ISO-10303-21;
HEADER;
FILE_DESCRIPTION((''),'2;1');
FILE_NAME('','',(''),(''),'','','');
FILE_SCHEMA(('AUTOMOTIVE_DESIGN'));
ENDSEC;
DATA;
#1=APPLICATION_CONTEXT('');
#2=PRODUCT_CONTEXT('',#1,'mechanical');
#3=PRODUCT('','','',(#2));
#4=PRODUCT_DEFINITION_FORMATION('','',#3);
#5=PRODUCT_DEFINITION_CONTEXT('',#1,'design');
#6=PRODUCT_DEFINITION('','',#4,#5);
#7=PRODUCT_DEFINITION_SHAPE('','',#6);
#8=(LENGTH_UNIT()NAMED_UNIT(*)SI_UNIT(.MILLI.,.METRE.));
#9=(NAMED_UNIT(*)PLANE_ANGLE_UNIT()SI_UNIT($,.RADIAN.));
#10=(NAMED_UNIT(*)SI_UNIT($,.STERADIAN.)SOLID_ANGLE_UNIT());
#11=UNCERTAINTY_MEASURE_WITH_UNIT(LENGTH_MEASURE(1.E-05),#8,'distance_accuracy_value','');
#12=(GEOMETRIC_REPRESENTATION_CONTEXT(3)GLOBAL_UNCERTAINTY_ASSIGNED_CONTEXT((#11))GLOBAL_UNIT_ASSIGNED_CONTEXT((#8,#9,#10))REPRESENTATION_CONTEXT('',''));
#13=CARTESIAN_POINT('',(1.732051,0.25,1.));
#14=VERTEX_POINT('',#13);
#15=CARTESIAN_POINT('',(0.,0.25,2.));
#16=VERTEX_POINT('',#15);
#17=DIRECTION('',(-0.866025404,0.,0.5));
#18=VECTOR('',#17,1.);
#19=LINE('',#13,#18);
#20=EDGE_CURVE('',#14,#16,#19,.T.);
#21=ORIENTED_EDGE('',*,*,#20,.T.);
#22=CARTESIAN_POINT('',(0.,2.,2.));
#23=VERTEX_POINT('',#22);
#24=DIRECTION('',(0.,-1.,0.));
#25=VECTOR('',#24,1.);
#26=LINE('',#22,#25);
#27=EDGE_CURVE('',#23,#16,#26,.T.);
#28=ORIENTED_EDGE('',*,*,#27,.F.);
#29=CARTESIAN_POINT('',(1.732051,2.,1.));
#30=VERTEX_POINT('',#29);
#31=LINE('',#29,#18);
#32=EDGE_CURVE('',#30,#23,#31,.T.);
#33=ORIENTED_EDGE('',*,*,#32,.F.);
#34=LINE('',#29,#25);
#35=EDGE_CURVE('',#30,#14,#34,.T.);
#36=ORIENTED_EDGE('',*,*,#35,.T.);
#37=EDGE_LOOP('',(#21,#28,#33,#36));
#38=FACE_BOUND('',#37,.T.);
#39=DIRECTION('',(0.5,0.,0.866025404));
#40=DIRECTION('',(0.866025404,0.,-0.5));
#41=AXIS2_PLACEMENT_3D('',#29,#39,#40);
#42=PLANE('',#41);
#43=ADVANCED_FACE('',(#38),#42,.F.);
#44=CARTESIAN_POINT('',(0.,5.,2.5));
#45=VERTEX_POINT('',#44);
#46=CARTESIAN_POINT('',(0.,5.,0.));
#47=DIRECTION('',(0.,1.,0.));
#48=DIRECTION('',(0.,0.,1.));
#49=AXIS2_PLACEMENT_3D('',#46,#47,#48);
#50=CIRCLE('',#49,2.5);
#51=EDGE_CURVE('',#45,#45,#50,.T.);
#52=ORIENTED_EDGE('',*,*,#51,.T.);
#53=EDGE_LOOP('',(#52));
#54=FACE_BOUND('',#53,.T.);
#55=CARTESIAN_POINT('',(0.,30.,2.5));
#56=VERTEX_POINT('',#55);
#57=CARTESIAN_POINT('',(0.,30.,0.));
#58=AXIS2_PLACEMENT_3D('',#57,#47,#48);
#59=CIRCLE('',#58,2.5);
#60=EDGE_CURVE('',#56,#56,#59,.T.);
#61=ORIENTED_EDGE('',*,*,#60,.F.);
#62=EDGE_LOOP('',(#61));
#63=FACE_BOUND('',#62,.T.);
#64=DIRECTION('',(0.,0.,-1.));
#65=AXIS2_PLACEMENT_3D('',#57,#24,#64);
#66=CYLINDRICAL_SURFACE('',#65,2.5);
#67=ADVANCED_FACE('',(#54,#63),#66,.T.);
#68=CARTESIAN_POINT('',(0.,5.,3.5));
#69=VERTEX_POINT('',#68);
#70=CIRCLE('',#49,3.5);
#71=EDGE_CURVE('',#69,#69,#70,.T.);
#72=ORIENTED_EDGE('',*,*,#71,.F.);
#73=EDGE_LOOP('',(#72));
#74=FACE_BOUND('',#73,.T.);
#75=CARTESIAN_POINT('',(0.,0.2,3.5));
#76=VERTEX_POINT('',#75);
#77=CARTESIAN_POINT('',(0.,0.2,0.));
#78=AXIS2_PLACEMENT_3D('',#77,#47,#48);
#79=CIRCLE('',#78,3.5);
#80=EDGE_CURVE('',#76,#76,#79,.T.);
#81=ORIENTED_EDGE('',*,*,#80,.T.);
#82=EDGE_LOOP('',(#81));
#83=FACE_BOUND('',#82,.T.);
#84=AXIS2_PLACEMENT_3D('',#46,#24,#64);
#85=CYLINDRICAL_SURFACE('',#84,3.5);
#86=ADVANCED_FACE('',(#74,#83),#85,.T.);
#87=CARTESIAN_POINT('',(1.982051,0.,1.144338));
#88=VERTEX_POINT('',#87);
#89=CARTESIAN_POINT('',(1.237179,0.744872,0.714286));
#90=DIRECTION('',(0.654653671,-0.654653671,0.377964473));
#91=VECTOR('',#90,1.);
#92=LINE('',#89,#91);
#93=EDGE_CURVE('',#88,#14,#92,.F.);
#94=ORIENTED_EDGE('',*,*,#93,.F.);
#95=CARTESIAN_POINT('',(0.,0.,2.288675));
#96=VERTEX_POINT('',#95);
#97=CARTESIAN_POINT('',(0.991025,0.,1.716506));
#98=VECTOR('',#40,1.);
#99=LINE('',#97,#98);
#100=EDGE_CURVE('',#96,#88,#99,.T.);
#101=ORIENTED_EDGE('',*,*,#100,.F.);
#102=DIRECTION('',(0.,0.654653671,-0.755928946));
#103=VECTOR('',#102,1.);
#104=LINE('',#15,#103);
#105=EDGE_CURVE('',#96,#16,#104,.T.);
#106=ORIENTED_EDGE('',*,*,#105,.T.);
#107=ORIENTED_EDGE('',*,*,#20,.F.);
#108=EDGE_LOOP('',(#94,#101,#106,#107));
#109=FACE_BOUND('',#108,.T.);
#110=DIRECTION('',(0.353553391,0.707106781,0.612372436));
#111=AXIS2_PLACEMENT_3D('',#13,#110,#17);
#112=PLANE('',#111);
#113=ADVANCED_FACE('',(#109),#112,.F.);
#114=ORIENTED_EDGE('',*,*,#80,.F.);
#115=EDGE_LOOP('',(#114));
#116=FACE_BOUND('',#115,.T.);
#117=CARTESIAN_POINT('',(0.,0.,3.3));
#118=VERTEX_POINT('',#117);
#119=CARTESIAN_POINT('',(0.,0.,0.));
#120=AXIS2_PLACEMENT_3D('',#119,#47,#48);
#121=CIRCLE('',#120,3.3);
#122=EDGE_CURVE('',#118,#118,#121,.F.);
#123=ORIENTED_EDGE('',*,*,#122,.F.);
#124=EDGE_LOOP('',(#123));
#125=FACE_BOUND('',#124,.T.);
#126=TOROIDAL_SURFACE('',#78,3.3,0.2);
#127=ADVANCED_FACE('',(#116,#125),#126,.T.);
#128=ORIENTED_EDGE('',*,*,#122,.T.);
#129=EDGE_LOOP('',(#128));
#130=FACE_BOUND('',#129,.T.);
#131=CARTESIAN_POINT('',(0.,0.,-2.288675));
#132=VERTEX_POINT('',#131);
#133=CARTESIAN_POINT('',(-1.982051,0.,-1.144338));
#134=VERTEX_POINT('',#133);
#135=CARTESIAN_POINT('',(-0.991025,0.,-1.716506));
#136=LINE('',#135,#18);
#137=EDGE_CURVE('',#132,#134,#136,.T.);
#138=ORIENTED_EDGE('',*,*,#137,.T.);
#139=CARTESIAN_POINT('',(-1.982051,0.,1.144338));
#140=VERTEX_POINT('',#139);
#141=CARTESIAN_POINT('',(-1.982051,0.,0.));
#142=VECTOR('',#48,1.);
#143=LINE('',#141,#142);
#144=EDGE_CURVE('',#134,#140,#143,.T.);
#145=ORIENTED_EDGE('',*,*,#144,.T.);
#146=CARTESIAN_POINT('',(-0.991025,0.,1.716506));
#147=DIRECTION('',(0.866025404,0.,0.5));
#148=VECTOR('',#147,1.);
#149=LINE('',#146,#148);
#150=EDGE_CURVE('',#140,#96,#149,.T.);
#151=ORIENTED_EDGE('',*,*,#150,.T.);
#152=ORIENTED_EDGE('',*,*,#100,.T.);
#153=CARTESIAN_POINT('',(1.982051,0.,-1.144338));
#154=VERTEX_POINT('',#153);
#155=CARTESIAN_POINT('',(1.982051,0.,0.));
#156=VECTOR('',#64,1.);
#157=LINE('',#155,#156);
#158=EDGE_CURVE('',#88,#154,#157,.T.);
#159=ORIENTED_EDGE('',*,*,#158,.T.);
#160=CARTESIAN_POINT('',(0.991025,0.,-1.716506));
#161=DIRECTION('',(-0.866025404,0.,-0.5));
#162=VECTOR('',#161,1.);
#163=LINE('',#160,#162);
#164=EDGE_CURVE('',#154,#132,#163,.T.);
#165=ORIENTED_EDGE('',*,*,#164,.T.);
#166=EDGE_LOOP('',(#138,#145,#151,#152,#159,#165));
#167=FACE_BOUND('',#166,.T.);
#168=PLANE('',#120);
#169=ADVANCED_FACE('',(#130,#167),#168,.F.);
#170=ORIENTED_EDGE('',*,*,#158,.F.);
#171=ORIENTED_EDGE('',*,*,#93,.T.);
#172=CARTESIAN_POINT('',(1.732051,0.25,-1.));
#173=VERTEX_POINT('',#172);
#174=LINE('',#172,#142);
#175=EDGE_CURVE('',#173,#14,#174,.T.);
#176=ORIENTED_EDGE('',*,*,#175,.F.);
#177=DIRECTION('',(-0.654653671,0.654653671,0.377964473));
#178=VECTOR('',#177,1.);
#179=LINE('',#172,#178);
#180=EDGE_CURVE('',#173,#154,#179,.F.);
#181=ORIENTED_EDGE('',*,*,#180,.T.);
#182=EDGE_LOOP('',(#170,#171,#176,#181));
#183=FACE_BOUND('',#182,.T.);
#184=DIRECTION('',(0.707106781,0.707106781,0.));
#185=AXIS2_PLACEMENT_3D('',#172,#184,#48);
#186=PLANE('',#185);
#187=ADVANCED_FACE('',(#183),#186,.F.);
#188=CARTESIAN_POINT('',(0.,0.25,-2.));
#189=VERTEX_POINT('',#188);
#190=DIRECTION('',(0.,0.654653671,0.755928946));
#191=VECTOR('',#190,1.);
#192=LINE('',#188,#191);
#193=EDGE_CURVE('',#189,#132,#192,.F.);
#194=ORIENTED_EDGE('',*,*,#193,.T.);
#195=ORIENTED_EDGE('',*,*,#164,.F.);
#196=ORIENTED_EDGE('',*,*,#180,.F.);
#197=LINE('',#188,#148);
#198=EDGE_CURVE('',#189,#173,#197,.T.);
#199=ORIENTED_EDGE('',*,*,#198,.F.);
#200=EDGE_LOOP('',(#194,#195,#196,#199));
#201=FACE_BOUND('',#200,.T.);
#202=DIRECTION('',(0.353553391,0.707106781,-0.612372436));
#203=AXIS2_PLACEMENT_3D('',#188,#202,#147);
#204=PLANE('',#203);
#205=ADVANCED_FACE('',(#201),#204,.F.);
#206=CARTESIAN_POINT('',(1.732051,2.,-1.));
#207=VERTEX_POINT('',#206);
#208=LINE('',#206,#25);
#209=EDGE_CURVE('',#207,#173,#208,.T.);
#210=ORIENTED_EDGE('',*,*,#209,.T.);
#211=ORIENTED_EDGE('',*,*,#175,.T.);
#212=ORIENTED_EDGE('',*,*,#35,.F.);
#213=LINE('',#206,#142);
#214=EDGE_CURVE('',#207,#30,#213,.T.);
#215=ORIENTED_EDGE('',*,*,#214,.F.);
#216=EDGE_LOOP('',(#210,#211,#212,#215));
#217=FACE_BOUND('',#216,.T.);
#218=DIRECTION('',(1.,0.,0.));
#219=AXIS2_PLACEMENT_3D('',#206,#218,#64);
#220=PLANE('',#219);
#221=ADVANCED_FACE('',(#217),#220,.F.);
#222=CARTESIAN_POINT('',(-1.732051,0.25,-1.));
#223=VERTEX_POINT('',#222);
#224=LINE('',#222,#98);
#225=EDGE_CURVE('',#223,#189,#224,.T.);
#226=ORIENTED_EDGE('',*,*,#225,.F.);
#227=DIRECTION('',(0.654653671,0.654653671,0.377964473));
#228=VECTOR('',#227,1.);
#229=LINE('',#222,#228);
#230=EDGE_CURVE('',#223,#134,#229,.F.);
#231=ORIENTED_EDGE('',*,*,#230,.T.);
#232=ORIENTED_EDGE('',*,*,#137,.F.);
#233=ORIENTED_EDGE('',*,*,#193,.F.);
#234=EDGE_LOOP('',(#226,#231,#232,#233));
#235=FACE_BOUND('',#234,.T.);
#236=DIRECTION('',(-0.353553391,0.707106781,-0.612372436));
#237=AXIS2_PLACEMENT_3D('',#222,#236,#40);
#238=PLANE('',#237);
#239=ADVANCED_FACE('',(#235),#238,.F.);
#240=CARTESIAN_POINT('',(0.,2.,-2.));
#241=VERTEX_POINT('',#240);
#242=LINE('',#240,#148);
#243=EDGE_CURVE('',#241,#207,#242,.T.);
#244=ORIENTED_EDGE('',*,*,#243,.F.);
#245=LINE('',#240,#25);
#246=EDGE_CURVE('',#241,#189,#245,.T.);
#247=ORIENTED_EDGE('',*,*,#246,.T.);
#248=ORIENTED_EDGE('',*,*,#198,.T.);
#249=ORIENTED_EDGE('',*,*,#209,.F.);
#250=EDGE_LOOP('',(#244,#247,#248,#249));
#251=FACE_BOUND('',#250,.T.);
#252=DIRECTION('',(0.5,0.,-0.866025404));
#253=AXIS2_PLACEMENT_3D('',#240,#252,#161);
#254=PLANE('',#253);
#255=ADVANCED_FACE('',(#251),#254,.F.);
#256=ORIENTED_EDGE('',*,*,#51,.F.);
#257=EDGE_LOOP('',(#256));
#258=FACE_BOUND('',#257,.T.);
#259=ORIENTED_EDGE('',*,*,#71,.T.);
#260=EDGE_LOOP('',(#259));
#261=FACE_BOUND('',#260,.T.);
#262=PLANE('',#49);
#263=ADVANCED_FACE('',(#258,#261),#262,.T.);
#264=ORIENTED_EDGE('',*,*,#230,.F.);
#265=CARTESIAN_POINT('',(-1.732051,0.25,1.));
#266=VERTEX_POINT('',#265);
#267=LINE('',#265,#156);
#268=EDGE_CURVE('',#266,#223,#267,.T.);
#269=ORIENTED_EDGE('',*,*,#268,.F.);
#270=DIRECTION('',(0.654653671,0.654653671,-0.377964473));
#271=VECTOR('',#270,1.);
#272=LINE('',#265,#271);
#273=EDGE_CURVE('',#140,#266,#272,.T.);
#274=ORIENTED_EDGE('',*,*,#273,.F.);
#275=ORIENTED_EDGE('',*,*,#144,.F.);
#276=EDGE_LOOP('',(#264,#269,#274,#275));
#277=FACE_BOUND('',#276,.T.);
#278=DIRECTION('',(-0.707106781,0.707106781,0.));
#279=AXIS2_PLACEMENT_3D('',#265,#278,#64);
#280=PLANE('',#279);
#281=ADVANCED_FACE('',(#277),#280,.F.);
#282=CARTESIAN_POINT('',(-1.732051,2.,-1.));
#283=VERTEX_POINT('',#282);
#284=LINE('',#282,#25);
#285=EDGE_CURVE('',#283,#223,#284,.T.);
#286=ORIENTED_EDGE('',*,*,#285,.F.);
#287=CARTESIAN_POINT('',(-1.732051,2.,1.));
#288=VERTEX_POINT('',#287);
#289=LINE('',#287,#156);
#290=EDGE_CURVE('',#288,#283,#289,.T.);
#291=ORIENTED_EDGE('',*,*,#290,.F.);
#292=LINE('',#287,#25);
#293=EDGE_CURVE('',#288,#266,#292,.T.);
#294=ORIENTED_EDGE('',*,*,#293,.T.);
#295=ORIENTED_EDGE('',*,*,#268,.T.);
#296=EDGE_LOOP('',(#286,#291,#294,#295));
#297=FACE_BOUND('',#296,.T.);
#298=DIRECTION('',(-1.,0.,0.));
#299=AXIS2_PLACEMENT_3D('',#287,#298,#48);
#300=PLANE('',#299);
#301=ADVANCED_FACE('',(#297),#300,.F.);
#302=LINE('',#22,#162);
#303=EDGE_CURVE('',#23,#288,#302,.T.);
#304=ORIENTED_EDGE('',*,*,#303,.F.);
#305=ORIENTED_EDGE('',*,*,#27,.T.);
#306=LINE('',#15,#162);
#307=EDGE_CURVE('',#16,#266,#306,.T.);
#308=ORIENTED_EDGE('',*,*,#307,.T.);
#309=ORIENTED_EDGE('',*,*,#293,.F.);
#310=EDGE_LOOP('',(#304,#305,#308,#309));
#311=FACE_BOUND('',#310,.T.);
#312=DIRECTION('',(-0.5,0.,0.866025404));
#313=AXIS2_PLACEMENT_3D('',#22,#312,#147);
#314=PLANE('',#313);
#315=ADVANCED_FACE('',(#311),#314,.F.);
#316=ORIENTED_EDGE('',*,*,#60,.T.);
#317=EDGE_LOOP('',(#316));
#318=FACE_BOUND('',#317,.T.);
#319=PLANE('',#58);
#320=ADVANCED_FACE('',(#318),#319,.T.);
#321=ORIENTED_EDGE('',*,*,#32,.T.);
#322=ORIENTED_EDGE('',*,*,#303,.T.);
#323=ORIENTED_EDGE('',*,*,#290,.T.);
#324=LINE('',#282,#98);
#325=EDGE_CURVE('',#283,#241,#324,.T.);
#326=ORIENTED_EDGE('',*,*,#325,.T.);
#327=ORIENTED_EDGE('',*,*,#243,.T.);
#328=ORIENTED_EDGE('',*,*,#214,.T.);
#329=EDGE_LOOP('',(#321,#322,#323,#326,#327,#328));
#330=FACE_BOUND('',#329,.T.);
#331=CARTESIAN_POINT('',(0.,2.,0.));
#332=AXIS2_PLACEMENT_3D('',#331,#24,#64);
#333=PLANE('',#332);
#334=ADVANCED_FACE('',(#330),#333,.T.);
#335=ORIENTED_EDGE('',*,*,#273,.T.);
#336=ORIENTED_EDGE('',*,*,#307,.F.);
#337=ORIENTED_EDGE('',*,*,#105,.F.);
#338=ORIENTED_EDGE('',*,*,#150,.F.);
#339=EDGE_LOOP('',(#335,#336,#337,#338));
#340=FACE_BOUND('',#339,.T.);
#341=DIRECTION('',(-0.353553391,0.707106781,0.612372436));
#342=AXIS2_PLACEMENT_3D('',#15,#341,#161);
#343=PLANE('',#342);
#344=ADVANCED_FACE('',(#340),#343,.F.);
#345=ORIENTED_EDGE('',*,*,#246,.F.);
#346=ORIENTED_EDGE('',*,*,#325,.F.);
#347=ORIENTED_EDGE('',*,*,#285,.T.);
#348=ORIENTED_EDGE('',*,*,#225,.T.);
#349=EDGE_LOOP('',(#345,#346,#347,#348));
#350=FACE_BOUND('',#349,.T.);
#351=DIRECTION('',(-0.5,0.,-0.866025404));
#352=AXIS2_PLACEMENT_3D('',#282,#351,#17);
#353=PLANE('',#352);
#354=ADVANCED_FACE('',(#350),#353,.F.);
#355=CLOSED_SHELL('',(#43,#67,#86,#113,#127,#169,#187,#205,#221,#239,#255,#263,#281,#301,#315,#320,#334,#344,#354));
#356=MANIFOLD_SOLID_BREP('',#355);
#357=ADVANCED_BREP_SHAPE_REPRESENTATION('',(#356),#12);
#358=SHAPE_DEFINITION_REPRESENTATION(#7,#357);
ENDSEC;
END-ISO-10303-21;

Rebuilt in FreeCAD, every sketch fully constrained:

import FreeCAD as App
import Part
import Sketcher
Q = App.Units.Quantity


def edges_at(feature, points):
    """Names of the edges that pass closest to the given points."""
    edges = feature.Shape.Edges
    near = lambda p: min(range(len(edges)), key=lambda i: edges[i].distToShape(Part.Vertex(*p))[0])
    return sorted({f"Edge{near(p) + 1}" for p in points})


def add_polygon(sketch, points):
    """Adds a closed chain of lines whose ends are joined by coincident constraints."""
    first, n = sketch.GeometryCount, len(points)
    for a, b in zip(points, points[1:] + points[:1]):
        sketch.addGeometry(Part.LineSegment(App.Vector(*a, 0), App.Vector(*b, 0)), False)
    for i in range(n):
        sketch.addConstraint(Sketcher.Constraint("Coincident", first + i, 2, first + (i + 1) % n, 1))

doc = App.newDocument("Part")
body = doc.addObject("PartDesign::Body", "Body")

# Sketch on XZ plane
sketch1 = body.newObject("Sketcher::SketchObject", "Sketch")
sketch1.AttachmentSupport = (doc.getObject("XZ_Plane"), [""])
sketch1.MapMode = "FlatFace"
sketch1.addGeometry(Part.Circle(App.Vector(0, 0, 0), App.Vector(0, 0, 1), 3.5), False)
sketch1.addConstraint([
    Sketcher.Constraint("Coincident", 0, 3, -1, 1),
    Sketcher.Constraint("Diameter", 0, Q("7 mm")),
])
pad1 = body.newObject("PartDesign::Pad", "Pad")
pad1.Profile = sketch1
pad1.Length = 5
pad1.Reversed = True

# Sketch on XZ plane
sketch2 = body.newObject("Sketcher::SketchObject", "Sketch001")
sketch2.AttachmentSupport = (doc.getObject("XZ_Plane"), [""])
sketch2.MapMode = "FlatFace"
sketch2.AttachmentOffset = App.Placement(App.Vector(0, 0, -5), App.Rotation())
sketch2.addGeometry(Part.Circle(App.Vector(0, 0, 0), App.Vector(0, 0, 1), 2.5), False)
sketch2.addConstraint([
    Sketcher.Constraint("Coincident", 0, 3, -1, 1),
    Sketcher.Constraint("Diameter", 0, Q("5 mm")),
])
pad2 = body.newObject("PartDesign::Pad", "Pad001")
pad2.Profile = sketch2
pad2.Length = 25
pad2.Reversed = True

# Sketch on XZ plane
sketch3 = body.newObject("Sketcher::SketchObject", "Sketch002")
sketch3.AttachmentSupport = (doc.getObject("XZ_Plane"), [""])
sketch3.MapMode = "FlatFace"
add_polygon(sketch3, [(0, 2), (-1.732051, 1), (-1.732051, -1), (0, -2), (1.732051, -1), (1.732051, 1)])  # lines 0-5
sketch3.addConstraint([
    Sketcher.Constraint("Vertical", 1),
    Sketcher.Constraint("Vertical", 4),
    Sketcher.Constraint("Symmetric", 0, 2, 3, 2, -1, 1),
    Sketcher.Constraint("Symmetric", 2, 2, 5, 2, -1, 1),
    Sketcher.Constraint("PointOnObject", 2, 2, -2),
    Sketcher.Constraint("Parallel", 2, 5),
    Sketcher.Constraint("Horizontal", 1, 2, 3, 2),
    Sketcher.Constraint("DistanceY", 1, 2, 1, 1, Q("2 mm")),
    Sketcher.Constraint("Angle", 0, Q("-150 deg")),
    Sketcher.Constraint("Distance", 0, Q("2 mm")),
])
pocket1 = body.newObject("PartDesign::Pocket", "Pocket")
pocket1.Profile = sketch3
pocket1.Length = 2
doc.recompute()

chamfer = body.newObject("PartDesign::Chamfer", "Chamfer")
chamfer.Base = (pocket1, edges_at(pocket1, [
    (0.866, 0, 1.5),
    (-0.866, 0, 1.5),
    (-1.732, 0, 0),
    (-0.866, 0, -1.5),
    (0.866, 0, -1.5),
    (1.732, 0, 0),
]))
chamfer.Size = 0.25
doc.recompute()

fillet = body.newObject("PartDesign::Fillet", "Fillet")
fillet.Base = (chamfer, edges_at(chamfer, [(0, 0, -3.5)]))
fillet.Radius = 0.2

doc.recompute()
